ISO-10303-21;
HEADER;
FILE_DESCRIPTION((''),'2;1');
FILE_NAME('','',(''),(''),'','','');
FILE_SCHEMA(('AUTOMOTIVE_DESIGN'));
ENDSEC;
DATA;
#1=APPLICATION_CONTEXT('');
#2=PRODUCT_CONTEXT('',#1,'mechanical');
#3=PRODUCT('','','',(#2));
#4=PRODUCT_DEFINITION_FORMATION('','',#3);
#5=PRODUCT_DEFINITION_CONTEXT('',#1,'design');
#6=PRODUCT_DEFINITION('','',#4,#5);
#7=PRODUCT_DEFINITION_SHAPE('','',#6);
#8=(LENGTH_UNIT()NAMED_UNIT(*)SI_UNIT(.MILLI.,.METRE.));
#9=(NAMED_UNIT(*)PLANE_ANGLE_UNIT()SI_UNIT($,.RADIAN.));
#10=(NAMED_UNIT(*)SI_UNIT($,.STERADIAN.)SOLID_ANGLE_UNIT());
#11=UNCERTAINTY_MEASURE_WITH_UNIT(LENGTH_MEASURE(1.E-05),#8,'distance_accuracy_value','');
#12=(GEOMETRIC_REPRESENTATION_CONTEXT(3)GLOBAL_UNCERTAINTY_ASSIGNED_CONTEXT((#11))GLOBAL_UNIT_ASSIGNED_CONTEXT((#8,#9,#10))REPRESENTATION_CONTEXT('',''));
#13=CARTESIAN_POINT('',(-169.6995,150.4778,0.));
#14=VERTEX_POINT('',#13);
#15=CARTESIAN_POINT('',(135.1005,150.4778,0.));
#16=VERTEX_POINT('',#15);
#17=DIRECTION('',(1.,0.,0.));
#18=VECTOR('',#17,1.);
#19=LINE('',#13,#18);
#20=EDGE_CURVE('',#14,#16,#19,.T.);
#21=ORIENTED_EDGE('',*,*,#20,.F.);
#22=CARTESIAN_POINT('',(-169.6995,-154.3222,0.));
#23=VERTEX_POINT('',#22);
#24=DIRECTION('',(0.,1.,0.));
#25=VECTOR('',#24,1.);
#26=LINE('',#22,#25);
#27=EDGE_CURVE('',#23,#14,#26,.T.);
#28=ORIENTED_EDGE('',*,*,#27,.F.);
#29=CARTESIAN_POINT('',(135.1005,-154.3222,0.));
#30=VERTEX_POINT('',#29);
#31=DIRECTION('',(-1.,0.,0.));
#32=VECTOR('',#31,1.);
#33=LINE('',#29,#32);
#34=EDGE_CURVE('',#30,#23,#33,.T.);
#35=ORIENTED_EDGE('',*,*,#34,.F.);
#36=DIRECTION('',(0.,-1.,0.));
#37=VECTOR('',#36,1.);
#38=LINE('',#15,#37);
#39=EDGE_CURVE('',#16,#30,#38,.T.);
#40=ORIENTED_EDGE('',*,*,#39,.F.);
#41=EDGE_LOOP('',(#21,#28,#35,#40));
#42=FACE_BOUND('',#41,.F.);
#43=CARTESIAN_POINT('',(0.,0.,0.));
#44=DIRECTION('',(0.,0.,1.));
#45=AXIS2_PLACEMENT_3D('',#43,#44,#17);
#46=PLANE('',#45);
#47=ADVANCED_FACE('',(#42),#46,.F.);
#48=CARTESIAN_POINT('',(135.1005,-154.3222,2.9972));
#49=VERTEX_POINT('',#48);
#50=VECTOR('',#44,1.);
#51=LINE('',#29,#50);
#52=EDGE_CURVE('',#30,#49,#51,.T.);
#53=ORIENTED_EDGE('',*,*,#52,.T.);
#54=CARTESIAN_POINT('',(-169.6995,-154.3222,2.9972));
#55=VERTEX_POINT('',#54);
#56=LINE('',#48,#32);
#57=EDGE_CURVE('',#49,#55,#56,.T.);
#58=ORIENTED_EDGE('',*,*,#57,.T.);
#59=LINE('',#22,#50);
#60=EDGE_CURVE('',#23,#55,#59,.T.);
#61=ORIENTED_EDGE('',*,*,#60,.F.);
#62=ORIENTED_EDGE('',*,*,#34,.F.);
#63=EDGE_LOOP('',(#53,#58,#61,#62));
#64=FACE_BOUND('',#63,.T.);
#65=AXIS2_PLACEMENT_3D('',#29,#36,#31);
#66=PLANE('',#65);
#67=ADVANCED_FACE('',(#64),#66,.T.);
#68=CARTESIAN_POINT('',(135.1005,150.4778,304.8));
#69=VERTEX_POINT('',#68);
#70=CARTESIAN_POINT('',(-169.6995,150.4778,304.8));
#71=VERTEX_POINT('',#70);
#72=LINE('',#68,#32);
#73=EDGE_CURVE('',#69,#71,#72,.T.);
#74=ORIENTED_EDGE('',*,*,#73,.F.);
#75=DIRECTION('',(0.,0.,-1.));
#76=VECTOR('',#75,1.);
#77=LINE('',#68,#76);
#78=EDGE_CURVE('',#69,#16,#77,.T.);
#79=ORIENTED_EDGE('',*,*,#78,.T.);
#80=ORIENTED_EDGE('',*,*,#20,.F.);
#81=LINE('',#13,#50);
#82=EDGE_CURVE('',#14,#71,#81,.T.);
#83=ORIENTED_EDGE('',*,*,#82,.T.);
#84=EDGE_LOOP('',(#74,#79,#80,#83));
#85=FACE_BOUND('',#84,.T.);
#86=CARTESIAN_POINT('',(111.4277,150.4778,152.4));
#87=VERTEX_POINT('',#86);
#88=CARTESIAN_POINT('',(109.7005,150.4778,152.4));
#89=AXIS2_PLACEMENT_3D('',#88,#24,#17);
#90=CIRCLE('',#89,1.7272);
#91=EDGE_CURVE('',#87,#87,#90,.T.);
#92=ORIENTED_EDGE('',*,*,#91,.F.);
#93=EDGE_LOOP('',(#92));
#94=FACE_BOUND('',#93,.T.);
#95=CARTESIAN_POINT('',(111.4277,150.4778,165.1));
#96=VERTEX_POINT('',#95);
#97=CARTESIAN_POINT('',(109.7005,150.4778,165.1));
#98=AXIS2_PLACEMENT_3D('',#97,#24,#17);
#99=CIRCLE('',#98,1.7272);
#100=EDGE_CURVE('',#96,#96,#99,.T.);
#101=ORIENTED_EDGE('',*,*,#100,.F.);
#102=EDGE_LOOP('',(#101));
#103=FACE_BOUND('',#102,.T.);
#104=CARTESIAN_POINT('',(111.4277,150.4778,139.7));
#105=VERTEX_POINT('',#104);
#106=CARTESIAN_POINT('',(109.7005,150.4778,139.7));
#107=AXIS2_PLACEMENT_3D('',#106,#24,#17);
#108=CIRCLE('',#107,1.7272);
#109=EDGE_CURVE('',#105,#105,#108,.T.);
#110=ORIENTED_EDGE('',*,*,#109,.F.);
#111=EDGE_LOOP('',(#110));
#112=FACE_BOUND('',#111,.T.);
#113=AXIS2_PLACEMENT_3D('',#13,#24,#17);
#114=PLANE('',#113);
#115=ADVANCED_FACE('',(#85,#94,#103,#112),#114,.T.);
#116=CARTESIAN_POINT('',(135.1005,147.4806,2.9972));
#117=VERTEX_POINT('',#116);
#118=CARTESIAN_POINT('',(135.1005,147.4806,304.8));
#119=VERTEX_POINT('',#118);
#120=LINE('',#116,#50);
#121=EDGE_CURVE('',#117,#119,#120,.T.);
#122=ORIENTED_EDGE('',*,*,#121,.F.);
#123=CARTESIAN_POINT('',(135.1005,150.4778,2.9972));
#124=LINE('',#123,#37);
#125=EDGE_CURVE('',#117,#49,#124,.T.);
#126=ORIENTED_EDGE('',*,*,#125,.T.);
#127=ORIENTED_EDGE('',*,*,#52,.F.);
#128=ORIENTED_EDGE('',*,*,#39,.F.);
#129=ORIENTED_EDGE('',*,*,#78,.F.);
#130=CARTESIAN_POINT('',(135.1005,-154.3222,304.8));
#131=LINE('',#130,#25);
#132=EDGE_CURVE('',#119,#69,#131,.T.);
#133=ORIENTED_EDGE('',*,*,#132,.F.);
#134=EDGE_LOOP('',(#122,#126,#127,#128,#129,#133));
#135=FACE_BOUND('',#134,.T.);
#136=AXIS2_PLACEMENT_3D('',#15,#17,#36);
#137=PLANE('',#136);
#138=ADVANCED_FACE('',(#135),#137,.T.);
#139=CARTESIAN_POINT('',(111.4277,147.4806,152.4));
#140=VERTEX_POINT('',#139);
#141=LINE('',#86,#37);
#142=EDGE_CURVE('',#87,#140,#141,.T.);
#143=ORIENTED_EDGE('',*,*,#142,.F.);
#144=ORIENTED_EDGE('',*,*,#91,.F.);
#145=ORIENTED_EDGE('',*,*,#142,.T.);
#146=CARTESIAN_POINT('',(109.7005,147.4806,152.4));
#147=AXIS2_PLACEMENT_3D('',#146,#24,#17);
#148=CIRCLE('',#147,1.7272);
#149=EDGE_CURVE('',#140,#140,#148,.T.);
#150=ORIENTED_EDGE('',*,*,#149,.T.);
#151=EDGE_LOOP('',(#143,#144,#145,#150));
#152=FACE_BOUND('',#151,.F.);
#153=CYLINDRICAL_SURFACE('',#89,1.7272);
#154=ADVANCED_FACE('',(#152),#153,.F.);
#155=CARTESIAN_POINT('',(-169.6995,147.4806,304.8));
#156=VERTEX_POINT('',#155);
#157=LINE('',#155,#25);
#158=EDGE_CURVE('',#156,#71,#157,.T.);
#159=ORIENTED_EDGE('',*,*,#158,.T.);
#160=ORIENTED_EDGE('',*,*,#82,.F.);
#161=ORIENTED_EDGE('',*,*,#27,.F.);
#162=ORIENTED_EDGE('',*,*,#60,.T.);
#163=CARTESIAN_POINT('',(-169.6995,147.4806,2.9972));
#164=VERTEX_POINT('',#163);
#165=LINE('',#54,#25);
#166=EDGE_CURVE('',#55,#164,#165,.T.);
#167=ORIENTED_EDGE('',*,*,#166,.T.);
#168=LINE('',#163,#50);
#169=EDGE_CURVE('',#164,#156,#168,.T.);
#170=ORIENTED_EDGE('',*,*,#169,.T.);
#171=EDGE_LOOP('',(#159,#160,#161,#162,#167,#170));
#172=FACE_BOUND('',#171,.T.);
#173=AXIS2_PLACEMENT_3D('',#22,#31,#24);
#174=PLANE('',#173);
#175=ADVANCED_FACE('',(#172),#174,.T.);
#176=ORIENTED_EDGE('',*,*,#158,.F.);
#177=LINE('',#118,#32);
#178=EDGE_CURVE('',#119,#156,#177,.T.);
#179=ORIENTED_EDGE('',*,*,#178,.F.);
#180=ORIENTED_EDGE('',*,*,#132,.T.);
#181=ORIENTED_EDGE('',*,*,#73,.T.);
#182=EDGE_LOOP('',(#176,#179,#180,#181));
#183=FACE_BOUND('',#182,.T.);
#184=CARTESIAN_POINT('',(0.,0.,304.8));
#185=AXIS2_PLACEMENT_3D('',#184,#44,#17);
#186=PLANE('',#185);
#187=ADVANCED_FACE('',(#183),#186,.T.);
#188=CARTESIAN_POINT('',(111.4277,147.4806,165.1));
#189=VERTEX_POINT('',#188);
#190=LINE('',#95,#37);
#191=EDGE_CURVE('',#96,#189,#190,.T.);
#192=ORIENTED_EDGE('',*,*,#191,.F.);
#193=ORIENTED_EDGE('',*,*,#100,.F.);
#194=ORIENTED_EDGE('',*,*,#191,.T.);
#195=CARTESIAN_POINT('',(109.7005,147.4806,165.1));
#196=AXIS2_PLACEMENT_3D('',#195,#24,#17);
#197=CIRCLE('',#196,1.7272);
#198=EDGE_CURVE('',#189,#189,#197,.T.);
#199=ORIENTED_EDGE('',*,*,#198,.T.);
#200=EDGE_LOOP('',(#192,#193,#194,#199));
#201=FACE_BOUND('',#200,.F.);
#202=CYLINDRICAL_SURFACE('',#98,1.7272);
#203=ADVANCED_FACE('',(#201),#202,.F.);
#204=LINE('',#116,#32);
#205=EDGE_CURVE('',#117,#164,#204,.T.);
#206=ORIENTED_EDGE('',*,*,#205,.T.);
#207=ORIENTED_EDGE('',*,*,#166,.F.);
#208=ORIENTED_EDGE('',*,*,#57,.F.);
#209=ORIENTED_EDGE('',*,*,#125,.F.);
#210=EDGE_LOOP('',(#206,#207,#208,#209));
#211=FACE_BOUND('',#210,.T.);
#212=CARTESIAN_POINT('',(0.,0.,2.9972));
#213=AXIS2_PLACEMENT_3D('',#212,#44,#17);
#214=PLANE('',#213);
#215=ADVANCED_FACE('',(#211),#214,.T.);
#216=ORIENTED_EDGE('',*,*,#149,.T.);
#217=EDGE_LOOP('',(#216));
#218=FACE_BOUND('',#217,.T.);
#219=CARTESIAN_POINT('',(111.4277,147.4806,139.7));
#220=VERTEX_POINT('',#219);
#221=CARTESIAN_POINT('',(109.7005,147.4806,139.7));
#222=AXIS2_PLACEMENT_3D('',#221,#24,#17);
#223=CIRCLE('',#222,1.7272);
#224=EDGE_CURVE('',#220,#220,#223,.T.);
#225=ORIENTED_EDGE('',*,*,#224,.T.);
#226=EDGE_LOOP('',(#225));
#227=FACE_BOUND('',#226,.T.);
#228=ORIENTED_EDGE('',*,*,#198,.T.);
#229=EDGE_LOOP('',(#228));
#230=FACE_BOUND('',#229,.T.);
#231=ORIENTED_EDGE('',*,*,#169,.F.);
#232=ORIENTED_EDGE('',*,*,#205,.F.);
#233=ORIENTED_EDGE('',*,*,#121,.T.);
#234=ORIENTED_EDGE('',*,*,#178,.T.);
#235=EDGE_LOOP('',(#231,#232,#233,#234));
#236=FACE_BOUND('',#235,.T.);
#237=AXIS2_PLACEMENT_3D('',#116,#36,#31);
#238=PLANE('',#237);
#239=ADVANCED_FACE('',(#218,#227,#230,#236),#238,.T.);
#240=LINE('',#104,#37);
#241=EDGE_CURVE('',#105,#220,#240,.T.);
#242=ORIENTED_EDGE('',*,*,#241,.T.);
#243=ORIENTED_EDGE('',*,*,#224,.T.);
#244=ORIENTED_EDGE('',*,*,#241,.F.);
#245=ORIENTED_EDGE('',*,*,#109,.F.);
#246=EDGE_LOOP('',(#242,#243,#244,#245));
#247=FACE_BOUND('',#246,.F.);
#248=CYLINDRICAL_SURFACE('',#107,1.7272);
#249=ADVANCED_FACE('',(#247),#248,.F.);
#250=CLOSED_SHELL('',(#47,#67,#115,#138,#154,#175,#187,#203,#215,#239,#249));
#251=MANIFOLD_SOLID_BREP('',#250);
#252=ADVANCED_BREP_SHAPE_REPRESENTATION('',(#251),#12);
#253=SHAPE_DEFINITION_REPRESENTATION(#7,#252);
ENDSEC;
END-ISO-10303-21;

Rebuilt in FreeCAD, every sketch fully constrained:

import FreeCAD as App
import Part
import Sketcher
Q = App.Units.Quantity

doc = App.newDocument("Part")
params = doc.addObject("Spreadsheet::Sheet", "Params")
for row, (alias, value) in enumerate([
    ("sketch1_width", "12 in"),
    ("pad1_length", "0.118 in"),
    ("sketch2_width", "12 in"),
    ("sketch2_height", "0.118 in"),
    ("pad2_length", "11.882 in"),
    ("sketch3_diameter", "0.136 in"),
], start=1):
    params.set(f"A{row}", alias)
    params.set(f"B{row}", "=" + value)
    params.setAlias(f"B{row}", alias)

body = doc.addObject("PartDesign::Body", "Body")

# Sketch on XY plane
sketch1 = body.newObject("Sketcher::SketchObject", "Sketch")
sketch1.AttachmentSupport = (doc.getObject("XY_Plane"), [""])
sketch1.MapMode = "FlatFace"
sketch1.addGeometry(Part.LineSegment(App.Vector(135.1005, 150.4778, 0), App.Vector(-169.6995, 150.4778, 0)), False)
sketch1.addGeometry(Part.LineSegment(App.Vector(-169.6995, 150.4778, 0), App.Vector(-169.6995, -154.3222, 0)), False)
sketch1.addGeometry(Part.LineSegment(App.Vector(-169.6995, -154.3222, 0), App.Vector(135.1005, -154.3222, 0)), False)
sketch1.addGeometry(Part.LineSegment(App.Vector(135.1005, -154.3222, 0), App.Vector(135.1005, 150.4778, 0)), False)
sketch1.addConstraint(Sketcher.Constraint("Coincident", 0, 2, 1, 1))
sketch1.addConstraint(Sketcher.Constraint("Coincident", 1, 2, 2, 1))
sketch1.addConstraint(Sketcher.Constraint("Coincident", 2, 2, 3, 1))
sketch1.addConstraint(Sketcher.Constraint("Coincident", 3, 2, 0, 1))
sketch1.addConstraint(Sketcher.Constraint("Horizontal", 0))
sketch1.addConstraint(Sketcher.Constraint("Vertical", 1))
sketch1.addConstraint(Sketcher.Constraint("Horizontal", 2))
sketch1.addConstraint(Sketcher.Constraint("Vertical", 3))
sketch1.addConstraint(Sketcher.Constraint("Equal", 2, 1))
sketch1.addConstraint(Sketcher.Constraint("DistanceX", 0, 2, 0, 1, Q("12 in")))
sketch1.addConstraint(Sketcher.Constraint("DistanceX", 0, 2, -1, 1, 169.6995))
sketch1.addConstraint(Sketcher.Constraint("DistanceY", -1, 1, 0, 2, 150.4778))
sketch1.setExpression("Constraints[9]", "Params.sketch1_width")
pad1 = body.newObject("PartDesign::Pad", "Pad")
pad1.Profile = sketch1
pad1.setExpression("Length", "Params.pad1_length")

# Sketch on XY plane
sketch2 = body.newObject("Sketcher::SketchObject", "Sketch001")
sketch2.AttachmentSupport = (doc.getObject("XY_Plane"), [""])
sketch2.MapMode = "FlatFace"
sketch2.AttachmentOffset = App.Placement(App.Vector(0, 0, 0.118 * 25.4), App.Rotation())
sketch2.addGeometry(Part.LineSegment(App.Vector(135.1005, 147.4806, 0), App.Vector(135.1005, 150.4778, 0)), False)
sketch2.addGeometry(Part.LineSegment(App.Vector(135.1005, 150.4778, 0), App.Vector(-169.6995, 150.4778, 0)), False)
sketch2.addGeometry(Part.LineSegment(App.Vector(-169.6995, 150.4778, 0), App.Vector(-169.6995, 147.4806, 0)), False)
sketch2.addGeometry(Part.LineSegment(App.Vector(-169.6995, 147.4806, 0), App.Vector(135.1005, 147.4806, 0)), False)
sketch2.addConstraint(Sketcher.Constraint("Coincident", 0, 2, 1, 1))
sketch2.addConstraint(Sketcher.Constraint("Coincident", 1, 2, 2, 1))
sketch2.addConstraint(Sketcher.Constraint("Coincident", 2, 2, 3, 1))
sketch2.addConstraint(Sketcher.Constraint("Coincident", 3, 2, 0, 1))
sketch2.addConstraint(Sketcher.Constraint("Vertical", 0))
sketch2.addConstraint(Sketcher.Constraint("Horizontal", 1))
sketch2.addConstraint(Sketcher.Constraint("Vertical", 2))
sketch2.addConstraint(Sketcher.Constraint("Horizontal", 3))
sketch2.addConstraint(Sketcher.Constraint("DistanceX", 1, 2, 1, 1, Q("12 in")))
sketch2.addConstraint(Sketcher.Constraint("DistanceY", 0, 1, 0, 2, Q("0.118 in")))
sketch2.addConstraint(Sketcher.Constraint("DistanceX", -1, 1, 0, 2, 135.1005))
sketch2.addConstraint(Sketcher.Constraint("DistanceY", -1, 1, 0, 2, 150.4778))
sketch2.setExpression("Constraints[8]", "Params.sketch2_width")
sketch2.setExpression("Constraints[9]", "Params.sketch2_height")
pad2 = body.newObject("PartDesign::Pad", "Pad001")
pad2.Profile = sketch2
pad2.setExpression("Length", "Params.pad2_length")

# Sketch on XZ plane
sketch3 = body.newObject("Sketcher::SketchObject", "Sketch002")
sketch3.AttachmentSupport = (doc.getObject("XZ_Plane"), [""])
sketch3.MapMode = "FlatFace"
sketch3.AttachmentOffset = App.Placement(App.Vector(0, 0, -150.4778), App.Rotation())
sketch3.addGeometry(Part.Circle(App.Vector(109.7005, 139.7, 0), App.Vector(0, 0, 1), 1.7272), False)
sketch3.addGeometry(Part.Circle(App.Vector(109.7005, 152.4, 0), App.Vector(0, 0, 1), 1.7272), False)
sketch3.addGeometry(Part.Circle(App.Vector(109.7005, 165.1, 0), App.Vector(0, 0, 1), 1.7272), False)
sketch3.addConstraint(Sketcher.Constraint("Equal", 0, 1))
sketch3.addConstraint(Sketcher.Constraint("Equal", 1, 2))
sketch3.addConstraint(Sketcher.Constraint("Vertical", 0, 3, 1, 3))
sketch3.addConstraint(Sketcher.Constraint("Vertical", 1, 3, 2, 3))
sketch3.addConstraint(Sketcher.Constraint("Diameter", 0, Q("0.136 in")))
sketch3.addConstraint(Sketcher.Constraint("DistanceY", -1, 1, 1, 3, Q("6 in")))
sketch3.addConstraint(Sketcher.Constraint("DistanceY", 0, 3, 2, 3, Q("1 in")))
sketch3.addConstraint(Sketcher.Constraint("DistanceY", 0, 3, 1, 3, Q("0.5 in")))
sketch3.addConstraint(Sketcher.Constraint("DistanceX", -1, 1, 0, 3, 109.7005))
sketch3.setExpression("Constraints[4]", "Params.sketch3_diameter")
pocket1 = body.newObject("PartDesign::Pocket", "Pocket")
pocket1.Profile = sketch3
pocket1.Type = "ThroughAll"
pocket1.Reversed = True

doc.recompute()
